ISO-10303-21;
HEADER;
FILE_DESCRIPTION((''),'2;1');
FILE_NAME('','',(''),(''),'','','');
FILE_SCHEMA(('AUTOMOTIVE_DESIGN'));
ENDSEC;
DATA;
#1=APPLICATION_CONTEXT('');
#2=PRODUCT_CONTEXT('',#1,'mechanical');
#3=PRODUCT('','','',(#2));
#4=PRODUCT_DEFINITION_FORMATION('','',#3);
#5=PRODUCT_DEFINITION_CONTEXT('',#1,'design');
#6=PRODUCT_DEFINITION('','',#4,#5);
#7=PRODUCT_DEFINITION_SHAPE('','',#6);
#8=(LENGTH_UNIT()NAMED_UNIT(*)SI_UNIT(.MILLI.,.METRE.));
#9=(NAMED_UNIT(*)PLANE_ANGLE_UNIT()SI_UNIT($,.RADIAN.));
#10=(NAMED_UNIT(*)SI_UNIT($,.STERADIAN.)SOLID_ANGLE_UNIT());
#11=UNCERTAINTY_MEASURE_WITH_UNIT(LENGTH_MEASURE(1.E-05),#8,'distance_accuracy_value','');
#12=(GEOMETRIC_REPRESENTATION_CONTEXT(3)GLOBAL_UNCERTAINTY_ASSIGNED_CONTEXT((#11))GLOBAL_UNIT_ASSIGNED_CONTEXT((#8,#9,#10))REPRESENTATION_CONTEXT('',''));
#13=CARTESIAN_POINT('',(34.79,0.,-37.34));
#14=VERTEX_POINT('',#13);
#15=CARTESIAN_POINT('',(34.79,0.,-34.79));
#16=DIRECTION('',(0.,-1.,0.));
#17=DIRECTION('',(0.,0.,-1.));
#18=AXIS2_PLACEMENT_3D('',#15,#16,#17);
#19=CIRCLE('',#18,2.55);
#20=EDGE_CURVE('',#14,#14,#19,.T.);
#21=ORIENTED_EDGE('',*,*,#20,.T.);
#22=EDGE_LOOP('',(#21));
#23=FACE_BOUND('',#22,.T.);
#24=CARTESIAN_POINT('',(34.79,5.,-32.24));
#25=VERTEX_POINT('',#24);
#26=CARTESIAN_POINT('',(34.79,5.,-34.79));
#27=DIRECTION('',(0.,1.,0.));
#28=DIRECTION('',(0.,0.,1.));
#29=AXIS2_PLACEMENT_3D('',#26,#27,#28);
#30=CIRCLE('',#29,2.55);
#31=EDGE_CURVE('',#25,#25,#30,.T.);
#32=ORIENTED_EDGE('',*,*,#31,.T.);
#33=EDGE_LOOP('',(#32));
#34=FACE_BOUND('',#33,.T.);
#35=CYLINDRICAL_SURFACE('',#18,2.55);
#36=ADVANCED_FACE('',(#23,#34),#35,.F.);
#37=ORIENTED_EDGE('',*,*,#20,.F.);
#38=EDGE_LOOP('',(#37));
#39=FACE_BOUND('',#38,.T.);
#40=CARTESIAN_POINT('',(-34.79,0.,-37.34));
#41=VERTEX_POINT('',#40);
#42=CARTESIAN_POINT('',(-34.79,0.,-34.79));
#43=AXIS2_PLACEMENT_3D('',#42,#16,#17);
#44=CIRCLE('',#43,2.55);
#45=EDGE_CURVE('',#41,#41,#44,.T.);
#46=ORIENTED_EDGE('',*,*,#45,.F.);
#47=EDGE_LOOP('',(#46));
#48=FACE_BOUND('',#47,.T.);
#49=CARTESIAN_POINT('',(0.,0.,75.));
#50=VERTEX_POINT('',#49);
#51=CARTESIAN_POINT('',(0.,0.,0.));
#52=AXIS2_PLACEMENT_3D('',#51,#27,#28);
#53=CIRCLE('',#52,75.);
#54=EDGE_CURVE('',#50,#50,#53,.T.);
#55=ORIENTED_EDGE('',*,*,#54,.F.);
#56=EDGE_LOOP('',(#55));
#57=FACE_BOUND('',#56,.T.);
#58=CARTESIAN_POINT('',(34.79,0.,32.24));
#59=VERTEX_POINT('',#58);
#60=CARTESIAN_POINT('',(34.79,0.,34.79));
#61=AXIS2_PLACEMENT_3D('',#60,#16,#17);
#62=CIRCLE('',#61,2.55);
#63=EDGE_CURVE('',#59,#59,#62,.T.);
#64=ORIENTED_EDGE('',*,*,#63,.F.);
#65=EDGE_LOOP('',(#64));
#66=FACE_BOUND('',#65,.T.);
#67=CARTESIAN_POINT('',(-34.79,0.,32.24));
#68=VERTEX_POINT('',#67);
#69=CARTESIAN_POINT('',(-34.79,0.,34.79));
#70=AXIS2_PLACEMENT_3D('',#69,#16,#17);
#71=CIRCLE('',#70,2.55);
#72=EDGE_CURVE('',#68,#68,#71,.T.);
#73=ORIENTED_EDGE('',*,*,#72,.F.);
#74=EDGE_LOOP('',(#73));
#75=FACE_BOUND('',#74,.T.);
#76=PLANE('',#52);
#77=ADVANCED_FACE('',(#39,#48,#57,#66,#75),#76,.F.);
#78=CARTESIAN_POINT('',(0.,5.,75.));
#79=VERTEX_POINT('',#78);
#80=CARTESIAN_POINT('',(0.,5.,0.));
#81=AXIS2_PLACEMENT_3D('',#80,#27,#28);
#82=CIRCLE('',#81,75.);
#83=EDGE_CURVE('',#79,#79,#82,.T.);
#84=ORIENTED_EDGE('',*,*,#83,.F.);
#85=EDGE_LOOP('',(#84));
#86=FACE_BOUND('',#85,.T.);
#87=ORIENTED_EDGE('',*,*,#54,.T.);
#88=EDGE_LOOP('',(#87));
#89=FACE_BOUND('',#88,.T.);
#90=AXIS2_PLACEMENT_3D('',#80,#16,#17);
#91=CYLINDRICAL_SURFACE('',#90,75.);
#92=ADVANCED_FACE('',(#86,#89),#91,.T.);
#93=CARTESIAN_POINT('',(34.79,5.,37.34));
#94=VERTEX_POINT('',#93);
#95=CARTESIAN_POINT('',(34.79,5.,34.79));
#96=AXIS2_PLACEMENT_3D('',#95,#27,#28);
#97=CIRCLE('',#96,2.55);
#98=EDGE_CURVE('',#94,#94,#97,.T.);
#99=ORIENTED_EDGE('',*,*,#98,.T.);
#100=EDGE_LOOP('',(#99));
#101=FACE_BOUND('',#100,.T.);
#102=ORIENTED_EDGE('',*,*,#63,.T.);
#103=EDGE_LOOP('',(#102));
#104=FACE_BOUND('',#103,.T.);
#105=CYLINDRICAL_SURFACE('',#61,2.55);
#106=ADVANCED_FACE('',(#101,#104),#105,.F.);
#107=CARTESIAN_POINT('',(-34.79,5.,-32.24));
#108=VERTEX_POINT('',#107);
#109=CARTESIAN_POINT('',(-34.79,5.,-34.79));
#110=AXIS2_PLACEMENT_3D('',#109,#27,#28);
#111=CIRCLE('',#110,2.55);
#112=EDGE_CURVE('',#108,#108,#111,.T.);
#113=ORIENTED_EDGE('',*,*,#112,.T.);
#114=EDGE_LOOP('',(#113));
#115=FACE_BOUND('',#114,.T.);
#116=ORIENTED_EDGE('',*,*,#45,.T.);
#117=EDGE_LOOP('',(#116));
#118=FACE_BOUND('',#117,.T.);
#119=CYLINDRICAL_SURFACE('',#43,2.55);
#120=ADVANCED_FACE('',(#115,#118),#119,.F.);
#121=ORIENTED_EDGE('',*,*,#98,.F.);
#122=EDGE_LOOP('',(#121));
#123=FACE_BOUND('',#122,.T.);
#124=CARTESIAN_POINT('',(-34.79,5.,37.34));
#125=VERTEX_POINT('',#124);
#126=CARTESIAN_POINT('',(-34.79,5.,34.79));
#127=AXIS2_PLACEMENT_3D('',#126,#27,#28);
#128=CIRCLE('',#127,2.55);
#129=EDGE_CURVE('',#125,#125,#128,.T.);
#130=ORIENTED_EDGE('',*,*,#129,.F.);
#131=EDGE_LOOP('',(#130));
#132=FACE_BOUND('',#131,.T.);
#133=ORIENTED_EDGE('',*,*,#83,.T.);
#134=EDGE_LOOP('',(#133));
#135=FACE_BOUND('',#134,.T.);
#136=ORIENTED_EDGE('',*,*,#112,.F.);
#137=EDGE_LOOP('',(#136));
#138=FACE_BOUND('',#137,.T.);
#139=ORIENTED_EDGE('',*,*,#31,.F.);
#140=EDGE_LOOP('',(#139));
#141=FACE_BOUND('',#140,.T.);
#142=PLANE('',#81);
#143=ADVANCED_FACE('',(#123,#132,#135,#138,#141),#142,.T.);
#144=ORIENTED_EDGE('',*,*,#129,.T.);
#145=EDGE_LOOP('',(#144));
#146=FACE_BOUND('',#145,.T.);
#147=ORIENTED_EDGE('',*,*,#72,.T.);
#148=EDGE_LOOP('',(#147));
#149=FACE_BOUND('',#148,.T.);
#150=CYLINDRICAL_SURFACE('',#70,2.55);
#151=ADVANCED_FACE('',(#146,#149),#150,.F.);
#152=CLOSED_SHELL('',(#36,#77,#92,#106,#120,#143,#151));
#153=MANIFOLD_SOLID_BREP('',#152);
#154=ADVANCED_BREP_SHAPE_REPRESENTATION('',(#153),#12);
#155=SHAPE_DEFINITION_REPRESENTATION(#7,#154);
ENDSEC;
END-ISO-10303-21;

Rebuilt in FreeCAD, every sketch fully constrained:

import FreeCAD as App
import Part
import Sketcher

V = App.Vector

doc = App.newDocument("Part")
params = doc.addObject("Spreadsheet::Sheet", "Params")
for row, (alias, value) in enumerate([
    ("sketch1_diameter", "150 mm"),
    ("pad1_length", "5 mm"),
    ("sketch2_diameter", "5.1 mm"),
    ("hole_diameter", "5.1 mm"),
], start=1):
    params.set(f"A{row}", alias)
    params.set(f"B{row}", "=" + value)
    params.setAlias(f"B{row}", alias)

body = doc.addObject("PartDesign::Body", "Body")

sketch1 = doc.addObject("Sketcher::SketchObject", "Sketch")
body.addObject(sketch1)
sketch1.AttachmentSupport = (doc.XZ_Plane, [""])
sketch1.MapMode = "FlatFace"
sketch1.addGeometry(Part.Circle(V(0, 0, 0), V(0, 0, 1), 75), False)
sketch1.addConstraint(Sketcher.Constraint("Coincident", 0, 3, -1, 1))
sketch1.addConstraint(Sketcher.Constraint("Diameter", 0, 150.0))
sketch1.setExpression("Constraints[1]", "Params.sketch1_diameter")
pad1 = doc.addObject("PartDesign::Pad", "Pad")
body.addObject(pad1)
pad1.Profile = sketch1
pad1.setExpression("Length", "Params.pad1_length")
pad1.Reversed = True

sketch2 = doc.addObject("Sketcher::SketchObject", "Sketch001")
body.addObject(sketch2)
sketch2.AttachmentSupport = (doc.XZ_Plane, [""])
sketch2.MapMode = "FlatFace"
sketch2.addGeometry(Part.Circle(V(34.79, -34.79, 0), V(0, 0, 1), 2.55), False)
sketch2.addGeometry(Part.Circle(V(34.79, 34.79, 0), V(0, 0, 1), 2.55), False)
sketch2.addGeometry(Part.Circle(V(-34.79, -34.79, 0), V(0, 0, 1), 2.55), False)
sketch2.addGeometry(Part.Circle(V(-34.79, 34.79, 0), V(0, 0, 1), 2.55), False)
sketch2.addConstraint(Sketcher.Constraint("Equal", 0, 1))
sketch2.addConstraint(Sketcher.Constraint("Equal", 1, 2))
sketch2.addConstraint(Sketcher.Constraint("Equal", 2, 3))
sketch2.addConstraint(Sketcher.Constraint("Symmetric", 1, 3, 2, 3, -1, 1))
sketch2.addConstraint(Sketcher.Constraint("Symmetric", 0, 3, 3, 3, -1, 1))
sketch2.addConstraint(Sketcher.Constraint("Symmetric", 0, 3, 2, 3, -2))
sketch2.addConstraint(Sketcher.Constraint("Diameter", 0, 5.1))
sketch2.addConstraint(Sketcher.Constraint("DistanceX", -1, 1, 0, 3, 34.79))
sketch2.addConstraint(Sketcher.Constraint("DistanceY", 0, 3, -1, 1, 34.79))
sketch2.setExpression("Constraints[6]", "Params.sketch2_diameter")
doc.recompute()
hole = doc.addObject("PartDesign::Hole", "Hole")
body.addObject(hole)
hole.Profile = sketch2
hole.ThreadType = "None"
hole.setExpression("Diameter", "Params.hole_diameter")
hole.DepthType = "ThroughAll"

doc.recompute()
